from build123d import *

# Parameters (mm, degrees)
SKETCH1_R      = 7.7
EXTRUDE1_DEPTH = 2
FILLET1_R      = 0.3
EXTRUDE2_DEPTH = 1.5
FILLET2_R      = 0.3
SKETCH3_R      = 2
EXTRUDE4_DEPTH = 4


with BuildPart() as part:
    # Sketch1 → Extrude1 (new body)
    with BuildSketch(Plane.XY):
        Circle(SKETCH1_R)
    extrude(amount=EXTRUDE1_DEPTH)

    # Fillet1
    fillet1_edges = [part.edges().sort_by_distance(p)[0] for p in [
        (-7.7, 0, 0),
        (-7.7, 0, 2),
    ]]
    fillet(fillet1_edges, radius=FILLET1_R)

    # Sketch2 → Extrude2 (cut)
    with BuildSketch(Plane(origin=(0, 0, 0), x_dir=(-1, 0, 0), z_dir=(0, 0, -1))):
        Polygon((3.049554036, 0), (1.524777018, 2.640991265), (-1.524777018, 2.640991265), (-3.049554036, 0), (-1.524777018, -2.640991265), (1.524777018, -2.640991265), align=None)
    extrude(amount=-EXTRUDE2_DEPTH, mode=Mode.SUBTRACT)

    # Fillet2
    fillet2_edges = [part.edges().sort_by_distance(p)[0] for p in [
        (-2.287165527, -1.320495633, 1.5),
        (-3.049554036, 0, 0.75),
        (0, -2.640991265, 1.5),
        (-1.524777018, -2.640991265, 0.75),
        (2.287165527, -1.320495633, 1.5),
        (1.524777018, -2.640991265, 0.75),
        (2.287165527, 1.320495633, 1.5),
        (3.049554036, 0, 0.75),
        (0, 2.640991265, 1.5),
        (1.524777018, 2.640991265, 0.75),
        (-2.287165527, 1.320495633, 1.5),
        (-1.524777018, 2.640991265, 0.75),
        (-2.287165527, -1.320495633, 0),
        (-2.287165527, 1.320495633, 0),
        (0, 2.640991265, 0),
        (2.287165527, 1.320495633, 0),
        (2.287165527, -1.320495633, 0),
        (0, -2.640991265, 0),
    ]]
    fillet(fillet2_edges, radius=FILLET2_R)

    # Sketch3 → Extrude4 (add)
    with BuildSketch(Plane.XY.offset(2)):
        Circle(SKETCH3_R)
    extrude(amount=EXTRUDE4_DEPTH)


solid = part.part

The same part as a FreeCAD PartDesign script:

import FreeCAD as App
import Part
import Sketcher

V = App.Vector
Q = App.Units.Quantity


def edges_at(feature, points):
    """Names of the edges that pass closest to the given points."""
    edges = feature.Shape.Edges
    near = lambda p: min(range(len(edges)), key=lambda i: edges[i].distToShape(Part.Vertex(*p))[0])
    return sorted({f"Edge{near(p) + 1}" for p in points})


def add_polygon(sketch, points):
    """Adds a closed chain of lines whose ends are joined by coincident constraints."""
    first, n = sketch.GeometryCount, len(points)
    for a, b in zip(points, points[1:] + points[:1]):
        sketch.addGeometry(Part.LineSegment(App.Vector(*a, 0), App.Vector(*b, 0)), False)
    for i in range(n):
        sketch.addConstraint(Sketcher.Constraint("Coincident", first + i, 2, first + (i + 1) % n, 1))

doc = App.newDocument("Part")
params = doc.addObject("Spreadsheet::Sheet", "Params")
for row, (alias, value) in enumerate([
    ("sketch1_diameter", "15.4 mm"),
    ("pad1_length", "2 mm"),
    ("fillet_radius", "0.3 mm"),
    ("pocket1_length", "1.5 mm"),
    ("fillet2_radius", "0.3 mm"),
    ("sketch3_diameter", "4 mm"),
    ("pad2_length", "4 mm"),
], start=1):
    params.set(f"A{row}", alias)
    params.set(f"B{row}", "=" + value)
    params.setAlias(f"B{row}", alias)

body = doc.addObject("PartDesign::Body", "Body")

sketch1 = doc.addObject("Sketcher::SketchObject", "Sketch")
body.addObject(sketch1)
sketch1.AttachmentSupport = (doc.XY_Plane, [""])
sketch1.MapMode = "FlatFace"
sketch1.addGeometry(Part.Circle(V(0, 0, 0), V(0, 0, 1), 8), False)
sketch1.addConstraint([
    Sketcher.Constraint("Coincident", 0, 3, -1, 1),
    Sketcher.Constraint("Diameter", 0, 15.4),
])
sketch1.setExpression("Constraints[1]", "Params.sketch1_diameter")
pad1 = doc.addObject("PartDesign::Pad", "Pad")
body.addObject(pad1)
pad1.Profile = sketch1
pad1.setExpression("Length", "Params.pad1_length")
doc.recompute()

fillet = doc.addObject("PartDesign::Fillet", "Fillet")
body.addObject(fillet)
fillet.Base = (pad1, edges_at(pad1, [(-7.7, 0, 0), (-7.7, 0, 2)]))
fillet.setExpression("Radius", "Params.fillet_radius")

sketch2 = doc.addObject("Sketcher::SketchObject", "Sketch001")
body.addObject(sketch2)
sketch2.AttachmentSupport = (doc.XY_Plane, [""])
sketch2.MapMode = "FlatFace"
add_polygon(sketch2, [(-3, 0), (-1.5, 2.6), (1.5, 2.6), (3, 0), (1.5, -2.6), (-1.5, -2.6)])
sketch2.addConstraint([
    Sketcher.Constraint("Horizontal", 1),
    Sketcher.Constraint("Horizontal", 4),
    Sketcher.Constraint("Symmetric", 0, 2, 3, 2, -1, 1),
    Sketcher.Constraint("Symmetric", 2, 2, 5, 2, -1, 1),
    Sketcher.Constraint("PointOnObject", 2, 2, -1),
    Sketcher.Constraint("Parallel", 2, 5),
    Sketcher.Constraint("Vertical", 1, 2, 3, 2),
    Sketcher.Constraint("Angle", 0, Q("60 deg")),
    Sketcher.Constraint("DistanceX", 1, 1, 1, 2, 3.049554),
    Sketcher.Constraint("DistanceY", -1, 1, 0, 2, 2.640991),
])
pocket1 = doc.addObject("PartDesign::Pocket", "Pocket")
body.addObject(pocket1)
pocket1.Profile = sketch2
pocket1.setExpression("Length", "Params.pocket1_length")
pocket1.Reversed = True
doc.recompute()

fillet2 = doc.addObject("PartDesign::Fillet", "Fillet001")
body.addObject(fillet2)
fillet2.Base = (pocket1, ["Edge1"])
fillet2.UseAllEdges = True
fillet2.setExpression("Radius", "Params.fillet2_radius")

sketch3 = doc.addObject("Sketcher::SketchObject", "Sketch002")
body.addObject(sketch3)
sketch3.AttachmentSupport = (doc.XY_Plane, [""])
sketch3.MapMode = "FlatFace"
sketch3.AttachmentOffset = App.Placement(V(0, 0, 2), App.Rotation())
sketch3.addGeometry(Part.Circle(V(0, 0, 0), V(0, 0, 1), 2), False)
sketch3.addConstraint([
    Sketcher.Constraint("Coincident", 0, 3, -1, 1),
    Sketcher.Constraint("Diameter", 0, 4.0),
])
sketch3.setExpression("Constraints[1]", "Params.sketch3_diameter")
pad2 = doc.addObject("PartDesign::Pad", "Pad001")
body.addObject(pad2)
pad2.Profile = sketch3
pad2.setExpression("Length", "Params.pad2_length")

doc.recompute()
